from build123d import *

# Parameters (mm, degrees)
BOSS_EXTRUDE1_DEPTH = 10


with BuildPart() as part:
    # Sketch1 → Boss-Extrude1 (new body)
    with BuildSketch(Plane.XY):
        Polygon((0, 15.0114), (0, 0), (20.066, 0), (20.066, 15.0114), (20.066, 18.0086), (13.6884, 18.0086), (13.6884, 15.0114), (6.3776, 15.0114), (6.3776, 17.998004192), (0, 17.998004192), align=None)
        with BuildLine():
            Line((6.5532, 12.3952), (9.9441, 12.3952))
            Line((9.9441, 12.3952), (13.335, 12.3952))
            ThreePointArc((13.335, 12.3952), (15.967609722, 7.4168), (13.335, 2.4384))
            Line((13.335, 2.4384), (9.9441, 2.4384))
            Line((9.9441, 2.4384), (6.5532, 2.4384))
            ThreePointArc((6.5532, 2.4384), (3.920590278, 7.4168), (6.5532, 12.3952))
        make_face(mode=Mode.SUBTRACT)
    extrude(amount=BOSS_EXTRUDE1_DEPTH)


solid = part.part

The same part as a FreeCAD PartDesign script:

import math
import FreeCAD as App
import Part
import Sketcher
from FreeCAD import Vector
Q = App.Units.Quantity

doc = App.newDocument("Part")
body = doc.addObject("PartDesign::Body", "Body")

# Sketch on XY plane
sketch1 = doc.addObject("Sketcher::SketchObject", "Sketch")
body.addObject(sketch1)
sketch1.AttachmentSupport = (doc.XY_Plane, [""])
sketch1.MapMode = "FlatFace"
sketch1.addGeometry(Part.LineSegment(Vector(0, 0, 0), Vector(20.1, 0, 0)), False)
sketch1.addGeometry(Part.LineSegment(Vector(20.1, 0, 0), Vector(20.1, 18, 0)), False)
sketch1.addGeometry(Part.LineSegment(Vector(20.1, 18, 0), Vector(13.7, 18, 0)), False)
sketch1.addGeometry(Part.LineSegment(Vector(13.7, 18, 0), Vector(13.7, 15, 0)), False)
sketch1.addGeometry(Part.LineSegment(Vector(13.7, 15, 0), Vector(6.4, 15, 0)), False)
sketch1.addGeometry(Part.LineSegment(Vector(6.4, 15, 0), Vector(6.4, 18, 0)), False)
sketch1.addGeometry(Part.LineSegment(Vector(6.4, 18, 0), Vector(0, 18, 0)), False)
sketch1.addGeometry(Part.LineSegment(Vector(0, 18, 0), Vector(0, 0, 0)), False)
sketch1.addGeometry(Part.ArcOfCircle(Part.Circle(Vector(9.9, 7.4, 0), Vector(0, 0, 1), 6), math.radians(124), math.radians(236)), False)
sketch1.addGeometry(Part.LineSegment(Vector(6.6, 12.4, 0), Vector(13.3, 12.4, 0)), False)
sketch1.addGeometry(Part.ArcOfCircle(Part.Circle(Vector(9.9, 7.4, 0), Vector(0, 0, 1), 6), math.radians(-56), math.radians(56)), False)
sketch1.addGeometry(Part.LineSegment(Vector(13.3, 2.4, 0), Vector(6.6, 2.4, 0)), False)
sketch1.addConstraint(Sketcher.Constraint("Coincident", 0, 2, 1, 1))
sketch1.addConstraint(Sketcher.Constraint("Coincident", 1, 2, 2, 1))
sketch1.addConstraint(Sketcher.Constraint("Coincident", 2, 2, 3, 1))
sketch1.addConstraint(Sketcher.Constraint("Coincident", 3, 2, 4, 1))
sketch1.addConstraint(Sketcher.Constraint("Coincident", 4, 2, 5, 1))
sketch1.addConstraint(Sketcher.Constraint("Coincident", 5, 2, 6, 1))
sketch1.addConstraint(Sketcher.Constraint("Coincident", 6, 2, 7, 1))
sketch1.addConstraint(Sketcher.Constraint("Coincident", 7, 2, 0, 1))
sketch1.addConstraint(Sketcher.Constraint("Coincident", 8, 1, 9, 1))
sketch1.addConstraint(Sketcher.Constraint("Coincident", 9, 2, 10, 2))
sketch1.addConstraint(Sketcher.Constraint("Coincident", 10, 1, 11, 1))
sketch1.addConstraint(Sketcher.Constraint("Coincident", 11, 2, 8, 2))
sketch1.addConstraint(Sketcher.Constraint("Horizontal", 0))
sketch1.addConstraint(Sketcher.Constraint("Vertical", 1))
sketch1.addConstraint(Sketcher.Constraint("Horizontal", 2))
sketch1.addConstraint(Sketcher.Constraint("Vertical", 3))
sketch1.addConstraint(Sketcher.Constraint("Horizontal", 4))
sketch1.addConstraint(Sketcher.Constraint("Vertical", 5))
sketch1.addConstraint(Sketcher.Constraint("Horizontal", 6))
sketch1.addConstraint(Sketcher.Constraint("Vertical", 7))
sketch1.addConstraint(Sketcher.Constraint("Horizontal", 9))
sketch1.addConstraint(Sketcher.Constraint("Horizontal", 11))
sketch1.addConstraint(Sketcher.Constraint("Coincident", 7, 2, -1, 1))
sketch1.addConstraint(Sketcher.Constraint("Coincident", 10, 3, 8, 3))
sketch1.addConstraint(Sketcher.Constraint("Equal", 8, 10))
sketch1.addConstraint(Sketcher.Constraint("Vertical", 9, 2, 10, 1))
sketch1.addConstraint(Sketcher.Constraint("Equal", 2, 6))
sketch1.addConstraint(Sketcher.Constraint("DistanceX", 0, 1, 0, 2, Q("0.79 in")))
sketch1.addConstraint(Sketcher.Constraint("DistanceX", 9, 1, 9, 2, Q("0.267 in")))
sketch1.addConstraint(Sketcher.Constraint("DistanceY", 1, 1, 1, 2, Q("0.709 in")))
sketch1.addConstraint(Sketcher.Constraint("DistanceY", 3, 2, 3, 1, Q("0.118 in")))
sketch1.addConstraint(Sketcher.Constraint("DistanceY", -1, 1, 8, 3, Q("0.292 in")))
sketch1.addConstraint(Sketcher.Constraint("DistanceX", -1, 1, 8, 1, Q("0.258 in")))
sketch1.addConstraint(Sketcher.Constraint("DistanceY", -1, 1, 8, 1, Q("0.488 in")))
sketch1.addConstraint(Sketcher.Constraint("DistanceX", 2, 2, 2, 1, Q("6.3776 mm")))
sketch1.addConstraint(Sketcher.Constraint("DistanceY", 5, 1, 5, 2, Q("2.986604 mm")))
pad1 = doc.addObject("PartDesign::Pad", "Pad")
body.addObject(pad1)
pad1.Profile = sketch1
pad1.Length = 10

doc.recompute()
